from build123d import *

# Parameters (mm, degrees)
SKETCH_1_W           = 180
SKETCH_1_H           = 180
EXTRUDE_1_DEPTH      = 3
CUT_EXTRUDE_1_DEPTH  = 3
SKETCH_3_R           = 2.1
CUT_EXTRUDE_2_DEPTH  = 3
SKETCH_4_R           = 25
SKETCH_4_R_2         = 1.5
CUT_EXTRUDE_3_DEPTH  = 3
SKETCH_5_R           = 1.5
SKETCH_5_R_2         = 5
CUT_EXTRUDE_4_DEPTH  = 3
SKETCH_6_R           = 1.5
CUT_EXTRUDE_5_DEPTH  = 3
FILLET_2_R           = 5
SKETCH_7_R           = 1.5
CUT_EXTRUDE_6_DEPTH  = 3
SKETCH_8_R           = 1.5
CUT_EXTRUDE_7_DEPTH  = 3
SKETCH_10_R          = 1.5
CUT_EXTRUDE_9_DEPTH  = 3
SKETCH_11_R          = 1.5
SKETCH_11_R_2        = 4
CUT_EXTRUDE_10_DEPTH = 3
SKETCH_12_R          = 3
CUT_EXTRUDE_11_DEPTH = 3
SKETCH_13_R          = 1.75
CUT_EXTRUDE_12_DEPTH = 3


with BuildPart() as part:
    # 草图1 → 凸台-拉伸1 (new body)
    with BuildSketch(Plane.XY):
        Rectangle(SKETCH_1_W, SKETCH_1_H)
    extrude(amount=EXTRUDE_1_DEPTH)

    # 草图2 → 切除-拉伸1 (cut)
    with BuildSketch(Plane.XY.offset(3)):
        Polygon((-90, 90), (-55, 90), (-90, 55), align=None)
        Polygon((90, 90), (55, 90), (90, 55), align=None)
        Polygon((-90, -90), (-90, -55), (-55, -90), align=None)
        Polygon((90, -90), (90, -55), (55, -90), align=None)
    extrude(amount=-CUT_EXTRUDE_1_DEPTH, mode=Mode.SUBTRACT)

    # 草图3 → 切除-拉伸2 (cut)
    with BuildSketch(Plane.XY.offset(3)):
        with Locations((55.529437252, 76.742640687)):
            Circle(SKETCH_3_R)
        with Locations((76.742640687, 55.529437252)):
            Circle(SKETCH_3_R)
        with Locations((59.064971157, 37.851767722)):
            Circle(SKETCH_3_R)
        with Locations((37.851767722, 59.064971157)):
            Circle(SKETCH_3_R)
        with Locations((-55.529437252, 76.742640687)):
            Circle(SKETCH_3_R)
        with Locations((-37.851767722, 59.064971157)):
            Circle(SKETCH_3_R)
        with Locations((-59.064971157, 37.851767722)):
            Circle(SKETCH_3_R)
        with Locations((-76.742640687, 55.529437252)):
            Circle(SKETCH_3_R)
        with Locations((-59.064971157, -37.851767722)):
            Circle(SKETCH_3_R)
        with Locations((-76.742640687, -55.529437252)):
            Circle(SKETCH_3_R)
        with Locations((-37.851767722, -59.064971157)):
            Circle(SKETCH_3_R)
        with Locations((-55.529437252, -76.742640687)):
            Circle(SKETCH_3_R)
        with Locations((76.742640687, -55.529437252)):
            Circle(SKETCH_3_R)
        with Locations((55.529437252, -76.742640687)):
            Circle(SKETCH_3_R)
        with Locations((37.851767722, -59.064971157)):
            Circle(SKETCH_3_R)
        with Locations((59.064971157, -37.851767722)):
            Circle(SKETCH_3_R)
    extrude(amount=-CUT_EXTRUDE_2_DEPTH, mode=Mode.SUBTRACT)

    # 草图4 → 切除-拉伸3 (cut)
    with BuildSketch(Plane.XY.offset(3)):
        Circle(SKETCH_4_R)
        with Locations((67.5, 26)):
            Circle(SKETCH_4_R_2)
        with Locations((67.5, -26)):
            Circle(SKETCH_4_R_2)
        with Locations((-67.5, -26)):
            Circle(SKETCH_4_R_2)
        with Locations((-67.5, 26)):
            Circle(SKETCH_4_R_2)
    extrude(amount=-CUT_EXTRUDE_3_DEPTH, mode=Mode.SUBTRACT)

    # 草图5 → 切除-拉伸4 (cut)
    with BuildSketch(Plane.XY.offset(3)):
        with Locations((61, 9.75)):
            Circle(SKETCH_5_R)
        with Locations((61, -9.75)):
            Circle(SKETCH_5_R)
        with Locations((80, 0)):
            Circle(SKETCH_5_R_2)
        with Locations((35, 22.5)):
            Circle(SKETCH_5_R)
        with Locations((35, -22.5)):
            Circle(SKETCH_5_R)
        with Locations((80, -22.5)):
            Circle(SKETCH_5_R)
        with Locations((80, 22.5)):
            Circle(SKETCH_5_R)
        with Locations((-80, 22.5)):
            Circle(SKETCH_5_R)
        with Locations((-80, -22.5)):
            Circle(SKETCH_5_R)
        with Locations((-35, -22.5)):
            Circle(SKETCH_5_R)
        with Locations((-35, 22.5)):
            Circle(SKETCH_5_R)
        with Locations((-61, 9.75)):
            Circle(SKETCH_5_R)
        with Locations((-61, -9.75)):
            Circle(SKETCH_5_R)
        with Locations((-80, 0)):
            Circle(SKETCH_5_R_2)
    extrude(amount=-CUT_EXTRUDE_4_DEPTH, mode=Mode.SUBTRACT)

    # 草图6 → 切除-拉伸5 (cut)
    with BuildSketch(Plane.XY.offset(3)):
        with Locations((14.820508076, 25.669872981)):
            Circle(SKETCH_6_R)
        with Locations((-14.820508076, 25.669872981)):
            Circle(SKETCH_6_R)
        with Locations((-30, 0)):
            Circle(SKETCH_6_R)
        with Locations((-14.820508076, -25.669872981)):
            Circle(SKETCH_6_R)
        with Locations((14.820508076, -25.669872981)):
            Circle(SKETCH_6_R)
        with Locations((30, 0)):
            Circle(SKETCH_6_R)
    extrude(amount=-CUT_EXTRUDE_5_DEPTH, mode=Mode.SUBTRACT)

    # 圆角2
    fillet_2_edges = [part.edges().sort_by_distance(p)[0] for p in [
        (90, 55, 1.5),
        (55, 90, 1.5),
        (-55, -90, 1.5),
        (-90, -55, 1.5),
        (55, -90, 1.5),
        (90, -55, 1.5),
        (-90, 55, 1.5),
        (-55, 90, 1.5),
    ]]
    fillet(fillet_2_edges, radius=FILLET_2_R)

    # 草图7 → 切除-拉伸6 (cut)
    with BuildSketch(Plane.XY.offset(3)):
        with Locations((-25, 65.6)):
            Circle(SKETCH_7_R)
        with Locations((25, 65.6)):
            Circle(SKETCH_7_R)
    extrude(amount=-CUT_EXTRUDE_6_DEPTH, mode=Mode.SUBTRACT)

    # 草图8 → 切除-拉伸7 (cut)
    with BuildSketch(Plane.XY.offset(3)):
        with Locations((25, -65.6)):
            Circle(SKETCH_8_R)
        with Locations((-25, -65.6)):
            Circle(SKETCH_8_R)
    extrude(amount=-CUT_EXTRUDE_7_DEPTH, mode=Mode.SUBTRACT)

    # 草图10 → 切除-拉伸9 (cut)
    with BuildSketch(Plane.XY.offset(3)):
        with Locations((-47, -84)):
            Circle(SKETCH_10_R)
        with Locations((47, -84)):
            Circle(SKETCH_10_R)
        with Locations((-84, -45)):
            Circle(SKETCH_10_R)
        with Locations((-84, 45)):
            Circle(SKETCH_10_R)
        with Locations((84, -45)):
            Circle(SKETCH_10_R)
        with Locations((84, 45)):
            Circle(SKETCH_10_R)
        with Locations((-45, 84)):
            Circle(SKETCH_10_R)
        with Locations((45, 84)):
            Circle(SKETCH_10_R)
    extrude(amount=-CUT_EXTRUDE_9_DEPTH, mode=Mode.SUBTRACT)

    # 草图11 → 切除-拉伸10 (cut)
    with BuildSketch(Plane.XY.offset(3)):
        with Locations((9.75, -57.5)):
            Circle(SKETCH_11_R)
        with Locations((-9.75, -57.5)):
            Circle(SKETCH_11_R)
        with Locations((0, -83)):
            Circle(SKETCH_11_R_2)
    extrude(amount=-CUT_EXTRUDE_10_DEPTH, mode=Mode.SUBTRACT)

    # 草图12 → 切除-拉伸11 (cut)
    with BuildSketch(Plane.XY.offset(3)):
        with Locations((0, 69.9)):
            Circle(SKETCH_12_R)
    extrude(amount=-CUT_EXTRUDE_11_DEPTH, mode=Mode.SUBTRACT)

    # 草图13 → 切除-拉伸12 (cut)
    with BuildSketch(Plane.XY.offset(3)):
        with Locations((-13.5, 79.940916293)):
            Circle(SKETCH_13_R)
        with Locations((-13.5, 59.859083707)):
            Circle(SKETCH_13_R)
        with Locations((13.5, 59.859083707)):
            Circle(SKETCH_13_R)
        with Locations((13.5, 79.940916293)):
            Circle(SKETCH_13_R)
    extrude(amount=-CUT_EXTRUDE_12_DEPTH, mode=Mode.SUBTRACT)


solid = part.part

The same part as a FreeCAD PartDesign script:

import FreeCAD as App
import Part
import Sketcher
Q = App.Units.Quantity


def edges_at(feature, points):
    """Names of the edges that pass closest to the given points."""
    edges = feature.Shape.Edges
    near = lambda p: min(range(len(edges)), key=lambda i: edges[i].distToShape(Part.Vertex(*p))[0])
    return sorted({f"Edge{near(p) + 1}" for p in points})


def add_polygon(sketch, points):
    """Adds a closed chain of lines whose ends are joined by coincident constraints."""
    first, n = sketch.GeometryCount, len(points)
    for a, b in zip(points, points[1:] + points[:1]):
        sketch.addGeometry(Part.LineSegment(App.Vector(*a, 0), App.Vector(*b, 0)), False)
    for i in range(n):
        sketch.addConstraint(Sketcher.Constraint("Coincident", first + i, 2, first + (i + 1) % n, 1))

doc = App.newDocument("Part")
body = doc.addObject("PartDesign::Body", "Body")

# Sketch on XY plane
sketch1 = doc.addObject("Sketcher::SketchObject", "Sketch")
body.addObject(sketch1)
sketch1.AttachmentSupport = (doc.XY_Plane, [""])
sketch1.MapMode = "FlatFace"
add_polygon(sketch1, [(-90, 90), (-90, -90), (90, -90), (90, 90)])  # lines 0-3
sketch1.addConstraint([
    Sketcher.Constraint("Vertical", 0),
    Sketcher.Constraint("Horizontal", 1),
    Sketcher.Constraint("Vertical", 2),
    Sketcher.Constraint("Horizontal", 3),
    Sketcher.Constraint("Symmetric", 0, 2, 2, 2, -1, 1),
    Sketcher.Constraint("Equal", 3, 0),
    Sketcher.Constraint("DistanceX", 1, 1, 1, 2, Q("180 mm")),
])
pad1 = doc.addObject("PartDesign::Pad", "Pad")
body.addObject(pad1)
pad1.Profile = sketch1
pad1.Length = 3

# Sketch on XY plane
sketch2 = doc.addObject("Sketcher::SketchObject", "Sketch001")
body.addObject(sketch2)
sketch2.AttachmentSupport = (doc.XY_Plane, [""])
sketch2.MapMode = "FlatFace"
sketch2.AttachmentOffset = App.Placement(App.Vector(0, 0, 3), App.Rotation())
add_polygon(sketch2, [(-55, 90), (-90, 90), (-90, 55)])  # lines 0-2
add_polygon(sketch2, [(90, 90), (55, 90), (90, 55)])  # lines 3-5
add_polygon(sketch2, [(-90, -55), (-90, -90), (-55, -90)])  # lines 6-8
add_polygon(sketch2, [(90, -90), (90, -55), (55, -90)])  # lines 9-11
sketch2.addConstraint([
    Sketcher.Constraint("Horizontal", 0),
    Sketcher.Constraint("Vertical", 1),
    Sketcher.Constraint("Horizontal", 3),
    Sketcher.Constraint("Vertical", 5),
    Sketcher.Constraint("Vertical", 6),
    Sketcher.Constraint("Horizontal", 7),
    Sketcher.Constraint("Vertical", 9),
    Sketcher.Constraint("Horizontal", 11),
    Sketcher.Constraint("Symmetric", 5, 2, 6, 2, -1, 1),
    Sketcher.Constraint("Symmetric", 1, 2, 9, 2, -1, 1),
    Sketcher.Constraint("Symmetric", 2, 2, 10, 2, -1, 1),
    Sketcher.Constraint("Symmetric", 2, 2, 3, 2, -2),
    Sketcher.Constraint("Symmetric", 1, 2, 4, 2, -2),
    Sketcher.Constraint("Perpendicular", 2, 4),
    Sketcher.Constraint("Parallel", 4, 8),
    Sketcher.Constraint("Horizontal", 8, 2, 9, 2),
    Sketcher.Constraint("DistanceX", 0, 2, 0, 1, Q("35 mm")),
    Sketcher.Constraint("DistanceX", 0, 2, -1, 1, Q("90 mm")),
    Sketcher.Constraint("DistanceY", -1, 1, 0, 2, Q("90 mm")),
])
pocket1 = doc.addObject("PartDesign::Pocket", "Pocket")
body.addObject(pocket1)
pocket1.Profile = sketch2
pocket1.Length = 3

# Sketch on XY plane
sketch3 = doc.addObject("Sketcher::SketchObject", "Sketch002")
body.addObject(sketch3)
sketch3.AttachmentSupport = (doc.XY_Plane, [""])
sketch3.MapMode = "FlatFace"
sketch3.AttachmentOffset = App.Placement(App.Vector(0, 0, 3), App.Rotation())
sketch3.addGeometry([
    Part.Circle(App.Vector(55.529437, 76.742641, 0), App.Vector(0, 0, 1), 2.1),  # 0
    Part.Circle(App.Vector(76.742641, 55.529437, 0), App.Vector(0, 0, 1), 2.1),  # 1
    Part.Circle(App.Vector(59.064971, 37.851768, 0), App.Vector(0, 0, 1), 2.1),  # 2
    Part.Circle(App.Vector(37.851768, 59.064971, 0), App.Vector(0, 0, 1), 2.1),  # 3
    Part.Circle(App.Vector(-55.529437, 76.742641, 0), App.Vector(0, 0, 1), 2.1),  # 4
    Part.Circle(App.Vector(-37.851768, 59.064971, 0), App.Vector(0, 0, 1), 2.1),  # 5
    Part.Circle(App.Vector(-59.064971, 37.851768, 0), App.Vector(0, 0, 1), 2.1),  # 6
    Part.Circle(App.Vector(-76.742641, 55.529437, 0), App.Vector(0, 0, 1), 2.1),  # 7
    Part.Circle(App.Vector(-59.064971, -37.851768, 0), App.Vector(0, 0, 1), 2.1),  # 8
    Part.Circle(App.Vector(-76.742641, -55.529437, 0), App.Vector(0, 0, 1), 2.1),  # 9
    Part.Circle(App.Vector(-37.851768, -59.064971, 0), App.Vector(0, 0, 1), 2.1),  # 10
    Part.Circle(App.Vector(-55.529437, -76.742641, 0), App.Vector(0, 0, 1), 2.1),  # 11
    Part.Circle(App.Vector(76.742641, -55.529437, 0), App.Vector(0, 0, 1), 2.1),  # 12
    Part.Circle(App.Vector(55.529437, -76.742641, 0), App.Vector(0, 0, 1), 2.1),  # 13
    Part.Circle(App.Vector(37.851768, -59.064971, 0), App.Vector(0, 0, 1), 2.1),  # 14
    Part.Circle(App.Vector(59.064971, -37.851768, 0), App.Vector(0, 0, 1), 2.1),  # 15
], False)
sketch3.addConstraint([
    Sketcher.Constraint("Equal", 0, 1),
    Sketcher.Constraint("Equal", 1, 2),
    Sketcher.Constraint("Equal", 2, 3),
    Sketcher.Constraint("Equal", 3, 4),
    Sketcher.Constraint("Equal", 4, 5),
    Sketcher.Constraint("Equal", 5, 6),
    Sketcher.Constraint("Equal", 6, 7),
    Sketcher.Constraint("Equal", 7, 8),
    Sketcher.Constraint("Equal", 8, 9),
    Sketcher.Constraint("Equal", 9, 10),
    Sketcher.Constraint("Equal", 10, 11),
    Sketcher.Constraint("Equal", 11, 12),
    Sketcher.Constraint("Equal", 12, 13),
    Sketcher.Constraint("Equal", 13, 14),
    Sketcher.Constraint("Equal", 14, 15),
    Sketcher.Constraint("Symmetric", 2, 3, 8, 3, -1, 1),
    Sketcher.Constraint("Symmetric", 1, 3, 9, 3, -1, 1),
    Sketcher.Constraint("Symmetric", 3, 3, 10, 3, -1, 1),
    Sketcher.Constraint("Symmetric", 0, 3, 11, 3, -1, 1),
    Sketcher.Constraint("Symmetric", 7, 3, 12, 3, -1, 1),
    Sketcher.Constraint("Symmetric", 4, 3, 13, 3, -1, 1),
    Sketcher.Constraint("Symmetric", 5, 3, 14, 3, -1, 1),
    Sketcher.Constraint("Symmetric", 6, 3, 15, 3, -1, 1),
    Sketcher.Constraint("Symmetric", 0, 3, 4, 3, -2),
    Sketcher.Constraint("Symmetric", 3, 3, 5, 3, -2),
    Sketcher.Constraint("Symmetric", 2, 3, 6, 3, -2),
    Sketcher.Constraint("Symmetric", 1, 3, 7, 3, -2),
    Sketcher.Constraint("Diameter", 0, Q("4.2 mm")),
    Sketcher.Constraint("DistanceY", -1, 1, 0, 3, Q("76.742641 mm")),
    Sketcher.Constraint("DistanceX", -1, 1, 1, 3, Q("76.742641 mm")),
    Sketcher.Constraint("DistanceX", -1, 1, 2, 3, Q("59.064971 mm")),
    Sketcher.Constraint("DistanceY", -1, 1, 3, 3, Q("59.064971 mm")),
    Sketcher.Constraint("DistanceY", 2, 3, 1, 3, Q("17.67767 mm")),
    Sketcher.Constraint("DistanceX", 3, 3, 0, 3, Q("17.67767 mm")),
    Sketcher.Constraint("DistanceX", 4, 3, 2, 3, Q("114.594408 mm")),
    Sketcher.Constraint("DistanceY", 8, 3, 5, 3, Q("96.916739 mm")),
])
pocket2 = doc.addObject("PartDesign::Pocket", "Pocket001")
body.addObject(pocket2)
pocket2.Profile = sketch3
pocket2.Length = 3

# Sketch on XY plane
sketch4 = doc.addObject("Sketcher::SketchObject", "Sketch003")
body.addObject(sketch4)
sketch4.AttachmentSupport = (doc.XY_Plane, [""])
sketch4.MapMode = "FlatFace"
sketch4.AttachmentOffset = App.Placement(App.Vector(0, 0, 3), App.Rotation())
sketch4.addGeometry([
    Part.Circle(App.Vector(0, 0, 0), App.Vector(0, 0, 1), 25),  # 0
    Part.Circle(App.Vector(67.5, 26, 0), App.Vector(0, 0, 1), 1.5),  # 1
    Part.Circle(App.Vector(67.5, -26, 0), App.Vector(0, 0, 1), 1.5),  # 2
    Part.Circle(App.Vector(-67.5, -26, 0), App.Vector(0, 0, 1), 1.5),  # 3
    Part.Circle(App.Vector(-67.5, 26, 0), App.Vector(0, 0, 1), 1.5),  # 4
], False)
sketch4.addConstraint([
    Sketcher.Constraint("Coincident", 0, 3, -1, 1),
    Sketcher.Constraint("Equal", 1, 2),
    Sketcher.Constraint("Equal", 2, 3),
    Sketcher.Constraint("Equal", 3, 4),
    Sketcher.Constraint("Symmetric", 1, 3, 3, 3, -1, 1),
    Sketcher.Constraint("Symmetric", 2, 3, 4, 3, -1, 1),
    Sketcher.Constraint("Symmetric", 2, 3, 3, 3, -2),
    Sketcher.Constraint("Diameter", 0, Q("50 mm")),
    Sketcher.Constraint("Diameter", 1, Q("3 mm")),
    Sketcher.Constraint("DistanceY", -1, 1, 1, 3, Q("26 mm")),
    Sketcher.Constraint("DistanceX", 3, 3, 2, 3, Q("135 mm")),
])
pocket3 = doc.addObject("PartDesign::Pocket", "Pocket002")
body.addObject(pocket3)
pocket3.Profile = sketch4
pocket3.Length = 3

# Sketch on XY plane
sketch5 = doc.addObject("Sketcher::SketchObject", "Sketch004")
body.addObject(sketch5)
sketch5.AttachmentSupport = (doc.XY_Plane, [""])
sketch5.MapMode = "FlatFace"
sketch5.AttachmentOffset = App.Placement(App.Vector(0, 0, 3), App.Rotation())
sketch5.addGeometry([
    Part.Circle(App.Vector(61, 9.75, 0), App.Vector(0, 0, 1), 1.5),  # 0
    Part.Circle(App.Vector(61, -9.75, 0), App.Vector(0, 0, 1), 1.5),  # 1
    Part.Circle(App.Vector(80, 0, 0), App.Vector(0, 0, 1), 5),  # 2
    Part.Circle(App.Vector(35, 22.5, 0), App.Vector(0, 0, 1), 1.5),  # 3
    Part.Circle(App.Vector(35, -22.5, 0), App.Vector(0, 0, 1), 1.5),  # 4
    Part.Circle(App.Vector(80, -22.5, 0), App.Vector(0, 0, 1), 1.5),  # 5
    Part.Circle(App.Vector(80, 22.5, 0), App.Vector(0, 0, 1), 1.5),  # 6
    Part.Circle(App.Vector(-80, 22.5, 0), App.Vector(0, 0, 1), 1.5),  # 7
    Part.Circle(App.Vector(-80, -22.5, 0), App.Vector(0, 0, 1), 1.5),  # 8
    Part.Circle(App.Vector(-35, -22.5, 0), App.Vector(0, 0, 1), 1.5),  # 9
    Part.Circle(App.Vector(-35, 22.5, 0), App.Vector(0, 0, 1), 1.5),  # 10
    Part.Circle(App.Vector(-61, 9.75, 0), App.Vector(0, 0, 1), 1.5),  # 11
    Part.Circle(App.Vector(-61, -9.75, 0), App.Vector(0, 0, 1), 1.5),  # 12
    Part.Circle(App.Vector(-80, 0, 0), App.Vector(0, 0, 1), 5),  # 13
], False)
sketch5.addConstraint([
    Sketcher.Constraint("Equal", 0, 1),
    Sketcher.Constraint("Equal", 1, 3),
    Sketcher.Constraint("Equal", 3, 4),
    Sketcher.Constraint("Equal", 4, 5),
    Sketcher.Constraint("Equal", 5, 6),
    Sketcher.Constraint("Equal", 6, 7),
    Sketcher.Constraint("Equal", 7, 8),
    Sketcher.Constraint("Equal", 8, 9),
    Sketcher.Constraint("Equal", 9, 10),
    Sketcher.Constraint("Equal", 10, 11),
    Sketcher.Constraint("Equal", 11, 12),
    Sketcher.Constraint("Equal", 2, 13),
    Sketcher.Constraint("Symmetric", 5, 3, 7, 3, -1, 1),
    Sketcher.Constraint("Symmetric", 6, 3, 8, 3, -1, 1),
    Sketcher.Constraint("Symmetric", 3, 3, 9, 3, -1, 1),
    Sketcher.Constraint("Symmetric", 4, 3, 10, 3, -1, 1),
    Sketcher.Constraint("Symmetric", 1, 3, 11, 3, -1, 1),
    Sketcher.Constraint("Symmetric", 0, 3, 12, 3, -1, 1),
    Sketcher.Constraint("Symmetric", 2, 3, 13, 3, -1, 1),
    Sketcher.Constraint("Symmetric", 6, 3, 7, 3, -2),
    Sketcher.Constraint("Symmetric", 4, 3, 9, 3, -2),
    Sketcher.Constraint("Symmetric", 0, 3, 11, 3, -2),
    Sketcher.Constraint("PointOnObject", 2, 3, -1),
    Sketcher.Constraint("Horizontal", 4, 3, 5, 3),
    Sketcher.Constraint("Vertical", 2, 3, 5, 3),
    Sketcher.Constraint("Diameter", 0, Q("3 mm")),
    Sketcher.Constraint("Diameter", 2, Q("10 mm")),
    Sketcher.Constraint("DistanceX", -1, 1, 0, 3, Q("61 mm")),
    Sketcher.Constraint("DistanceX", -1, 1, 2, 3, Q("80 mm")),
    Sketcher.Constraint("DistanceX", -1, 1, 3, 3, Q("35 mm")),
    Sketcher.Constraint("DistanceY", 4, 3, 3, 3, Q("45 mm")),
    Sketcher.Constraint("DistanceY", 1, 3, 0, 3, Q("19.5 mm")),
])
pocket4 = doc.addObject("PartDesign::Pocket", "Pocket003")
body.addObject(pocket4)
pocket4.Profile = sketch5
pocket4.Length = 3

# Sketch on XY plane
sketch6 = doc.addObject("Sketcher::SketchObject", "Sketch005")
body.addObject(sketch6)
sketch6.AttachmentSupport = (doc.XY_Plane, [""])
sketch6.MapMode = "FlatFace"
sketch6.AttachmentOffset = App.Placement(App.Vector(0, 0, 3), App.Rotation())
sketch6.addGeometry([
    Part.Circle(App.Vector(14.820508, 25.669873, 0), App.Vector(0, 0, 1), 1.5),  # 0
    Part.Circle(App.Vector(-14.820508, 25.669873, 0), App.Vector(0, 0, 1), 1.5),  # 1
    Part.Circle(App.Vector(-30, 0, 0), App.Vector(0, 0, 1), 1.5),  # 2
    Part.Circle(App.Vector(-14.820508, -25.669873, 0), App.Vector(0, 0, 1), 1.5),  # 3
    Part.Circle(App.Vector(14.820508, -25.669873, 0), App.Vector(0, 0, 1), 1.5),  # 4
    Part.Circle(App.Vector(30, 0, 0), App.Vector(0, 0, 1), 1.5),  # 5
], False)
sketch6.addConstraint([
    Sketcher.Constraint("Equal", 0, 1),
    Sketcher.Constraint("Equal", 1, 2),
    Sketcher.Constraint("Equal", 2, 3),
    Sketcher.Constraint("Equal", 3, 4),
    Sketcher.Constraint("Equal", 4, 5),
    Sketcher.Constraint("Symmetric", 0, 3, 3, 3, -1, 1),
    Sketcher.Constraint("Symmetric", 1, 3, 4, 3, -1, 1),
    Sketcher.Constraint("Symmetric", 2, 3, 5, 3, -1, 1),
    Sketcher.Constraint("Symmetric", 0, 3, 1, 3, -2),
    Sketcher.Constraint("PointOnObject", 2, 3, -1),
    Sketcher.Constraint("Diameter", 0, Q("3 mm")),
    Sketcher.Constraint("DistanceX", 2, 3, -1, 1, Q("30 mm")),
    Sketcher.Constraint("DistanceX", -1, 1, 0, 3, Q("14.820508 mm")),
    Sketcher.Constraint("DistanceY", -1, 1, 0, 3, Q("25.669873 mm")),
])
pocket5 = doc.addObject("PartDesign::Pocket", "Pocket004")
body.addObject(pocket5)
pocket5.Profile = sketch6
pocket5.Length = 3
doc.recompute()

fillet = doc.addObject("PartDesign::Fillet", "Fillet")
body.addObject(fillet)
fillet.Base = (pocket5, edges_at(pocket5, [
    (90, 55, 1.5),
    (55, 90, 1.5),
    (-55, -90, 1.5),
    (-90, -55, 1.5),
    (55, -90, 1.5),
    (90, -55, 1.5),
    (-90, 55, 1.5),
    (-55, 90, 1.5),
]))
fillet.Radius = 5

# Sketch on XY plane
sketch7 = doc.addObject("Sketcher::SketchObject", "Sketch006")
body.addObject(sketch7)
sketch7.AttachmentSupport = (doc.XY_Plane, [""])
sketch7.MapMode = "FlatFace"
sketch7.AttachmentOffset = App.Placement(App.Vector(0, 0, 3), App.Rotation())
sketch7.addGeometry([
    Part.Circle(App.Vector(-25, 65.6, 0), App.Vector(0, 0, 1), 1.5),
    Part.Circle(App.Vector(25, 65.6, 0), App.Vector(0, 0, 1), 1.5),
], False)
sketch7.addConstraint([
    Sketcher.Constraint("Equal", 0, 1),
    Sketcher.Constraint("Symmetric", 0, 3, 1, 3, -2),
    Sketcher.Constraint("Diameter", 0, Q("3 mm")),
    Sketcher.Constraint("DistanceX", 0, 3, -1, 1, Q("25 mm")),
    Sketcher.Constraint("DistanceY", -1, 1, 0, 3, Q("65.6 mm")),
])
pocket6 = doc.addObject("PartDesign::Pocket", "Pocket005")
body.addObject(pocket6)
pocket6.Profile = sketch7
pocket6.Length = 3

# Sketch on XY plane
sketch8 = doc.addObject("Sketcher::SketchObject", "Sketch007")
body.addObject(sketch8)
sketch8.AttachmentSupport = (doc.XY_Plane, [""])
sketch8.MapMode = "FlatFace"
sketch8.AttachmentOffset = App.Placement(App.Vector(0, 0, 3), App.Rotation())
sketch8.addGeometry([
    Part.Circle(App.Vector(25, -65.6, 0), App.Vector(0, 0, 1), 1.5),
    Part.Circle(App.Vector(-25, -65.6, 0), App.Vector(0, 0, 1), 1.5),
], False)
sketch8.addConstraint([
    Sketcher.Constraint("Equal", 0, 1),
    Sketcher.Constraint("Symmetric", 0, 3, 1, 3, -2),
    Sketcher.Constraint("Diameter", 0, Q("3 mm")),
    Sketcher.Constraint("DistanceX", -1, 1, 0, 3, Q("25 mm")),
    Sketcher.Constraint("DistanceY", 0, 3, -1, 1, Q("65.6 mm")),
])
pocket7 = doc.addObject("PartDesign::Pocket", "Pocket006")
body.addObject(pocket7)
pocket7.Profile = sketch8
pocket7.Length = 3

# Sketch on XY plane
sketch9 = doc.addObject("Sketcher::SketchObject", "Sketch008")
body.addObject(sketch9)
sketch9.AttachmentSupport = (doc.XY_Plane, [""])
sketch9.MapMode = "FlatFace"
sketch9.AttachmentOffset = App.Placement(App.Vector(0, 0, 3), App.Rotation())
sketch9.addGeometry([
    Part.Circle(App.Vector(-47, -84, 0), App.Vector(0, 0, 1), 1.5),  # 0
    Part.Circle(App.Vector(47, -84, 0), App.Vector(0, 0, 1), 1.5),  # 1
    Part.Circle(App.Vector(-84, -45, 0), App.Vector(0, 0, 1), 1.5),  # 2
    Part.Circle(App.Vector(-84, 45, 0), App.Vector(0, 0, 1), 1.5),  # 3
    Part.Circle(App.Vector(84, -45, 0), App.Vector(0, 0, 1), 1.5),  # 4
    Part.Circle(App.Vector(84, 45, 0), App.Vector(0, 0, 1), 1.5),  # 5
    Part.Circle(App.Vector(-45, 84, 0), App.Vector(0, 0, 1), 1.5),  # 6
    Part.Circle(App.Vector(45, 84, 0), App.Vector(0, 0, 1), 1.5),  # 7
], False)
sketch9.addConstraint([
    Sketcher.Constraint("Equal", 0, 1),
    Sketcher.Constraint("Equal", 1, 2),
    Sketcher.Constraint("Equal", 2, 3),
    Sketcher.Constraint("Equal", 3, 4),
    Sketcher.Constraint("Equal", 4, 5),
    Sketcher.Constraint("Equal", 5, 6),
    Sketcher.Constraint("Equal", 6, 7),
    Sketcher.Constraint("Symmetric", 3, 3, 4, 3, -1, 1),
    Sketcher.Constraint("Symmetric", 2, 3, 5, 3, -1, 1),
    Sketcher.Constraint("Symmetric", 0, 3, 1, 3, -2),
    Sketcher.Constraint("Symmetric", 2, 3, 4, 3, -2),
    Sketcher.Constraint("Symmetric", 6, 3, 7, 3, -2),
    Sketcher.Constraint("Diameter", 0, Q("3 mm")),
    Sketcher.Constraint("DistanceX", 0, 3, -1, 1, Q("47 mm")),
    Sketcher.Constraint("DistanceY", 0, 3, -1, 1, Q("84 mm")),
    Sketcher.Constraint("DistanceX", 2, 3, -1, 1, Q("84 mm")),
    Sketcher.Constraint("DistanceY", 2, 3, -1, 1, Q("45 mm")),
    Sketcher.Constraint("DistanceX", 6, 3, -1, 1, Q("45 mm")),
    Sketcher.Constraint("DistanceY", -1, 1, 6, 3, Q("84 mm")),
])
pocket8 = doc.addObject("PartDesign::Pocket", "Pocket007")
body.addObject(pocket8)
pocket8.Profile = sketch9
pocket8.Length = 3

# Sketch on XY plane
sketch10 = doc.addObject("Sketcher::SketchObject", "Sketch009")
body.addObject(sketch10)
sketch10.AttachmentSupport = (doc.XY_Plane, [""])
sketch10.MapMode = "FlatFace"
sketch10.AttachmentOffset = App.Placement(App.Vector(0, 0, 3), App.Rotation())
sketch10.addGeometry([
    Part.Circle(App.Vector(9.75, -57.5, 0), App.Vector(0, 0, 1), 1.5),
    Part.Circle(App.Vector(-9.75, -57.5, 0), App.Vector(0, 0, 1), 1.5),
    Part.Circle(App.Vector(0, -83, 0), App.Vector(0, 0, 1), 4),
], False)
sketch10.addConstraint([
    Sketcher.Constraint("Equal", 0, 1),
    Sketcher.Constraint("Symmetric", 0, 3, 1, 3, -2),
    Sketcher.Constraint("PointOnObject", 2, 3, -2),
    Sketcher.Constraint("Diameter", 0, Q("3 mm")),
    Sketcher.Constraint("Diameter", 2, Q("8 mm")),
    Sketcher.Constraint("DistanceY", 2, 3, -1, 1, Q("83 mm")),
    Sketcher.Constraint("DistanceY", 0, 3, -1, 1, Q("57.5 mm")),
    Sketcher.Constraint("DistanceX", 1, 3, 0, 3, Q("19.5 mm")),
])
pocket9 = doc.addObject("PartDesign::Pocket", "Pocket008")
body.addObject(pocket9)
pocket9.Profile = sketch10
pocket9.Length = 3

# Sketch on XY plane
sketch11 = doc.addObject("Sketcher::SketchObject", "Sketch010")
body.addObject(sketch11)
sketch11.AttachmentSupport = (doc.XY_Plane, [""])
sketch11.MapMode = "FlatFace"
sketch11.AttachmentOffset = App.Placement(App.Vector(0, 0, 3), App.Rotation())
sketch11.addGeometry(Part.Circle(App.Vector(0, 69.9, 0), App.Vector(0, 0, 1), 3), False)
sketch11.addConstraint([
    Sketcher.Constraint("PointOnObject", 0, 3, -2),
    Sketcher.Constraint("Diameter", 0, Q("6 mm")),
    Sketcher.Constraint("DistanceY", -1, 1, 0, 3, Q("69.9 mm")),
])
pocket10 = doc.addObject("PartDesign::Pocket", "Pocket009")
body.addObject(pocket10)
pocket10.Profile = sketch11
pocket10.Length = 3

# Sketch on XY plane
sketch12 = doc.addObject("Sketcher::SketchObject", "Sketch011")
body.addObject(sketch12)
sketch12.AttachmentSupport = (doc.XY_Plane, [""])
sketch12.MapMode = "FlatFace"
sketch12.AttachmentOffset = App.Placement(App.Vector(0, 0, 3), App.Rotation())
sketch12.addGeometry([
    Part.Circle(App.Vector(-13.5, 79.940916, 0), App.Vector(0, 0, 1), 1.75),
    Part.Circle(App.Vector(-13.5, 59.859084, 0), App.Vector(0, 0, 1), 1.75),
    Part.Circle(App.Vector(13.5, 59.859084, 0), App.Vector(0, 0, 1), 1.75),
    Part.Circle(App.Vector(13.5, 79.940916, 0), App.Vector(0, 0, 1), 1.75),
], False)
sketch12.addConstraint([
    Sketcher.Constraint("Equal", 0, 1),
    Sketcher.Constraint("Equal", 1, 2),
    Sketcher.Constraint("Equal", 2, 3),
    Sketcher.Constraint("Symmetric", 1, 3, 2, 3, -2),
    Sketcher.Constraint("Symmetric", 0, 3, 3, 3, -2),
    Sketcher.Constraint("Vertical", 0, 3, 1, 3),
    Sketcher.Constraint("Diameter", 0, Q("3.5 mm")),
    Sketcher.Constraint("DistanceX", 1, 3, 2, 3, Q("27 mm")),
    Sketcher.Constraint("DistanceY", -1, 1, 0, 3, Q("79.940916 mm")),
    Sketcher.Constraint("DistanceY", -1, 1, 1, 3, Q("59.859084 mm")),
])
pocket11 = doc.addObject("PartDesign::Pocket", "Pocket010")
body.addObject(pocket11)
pocket11.Profile = sketch12
pocket11.Length = 3

doc.recompute()
